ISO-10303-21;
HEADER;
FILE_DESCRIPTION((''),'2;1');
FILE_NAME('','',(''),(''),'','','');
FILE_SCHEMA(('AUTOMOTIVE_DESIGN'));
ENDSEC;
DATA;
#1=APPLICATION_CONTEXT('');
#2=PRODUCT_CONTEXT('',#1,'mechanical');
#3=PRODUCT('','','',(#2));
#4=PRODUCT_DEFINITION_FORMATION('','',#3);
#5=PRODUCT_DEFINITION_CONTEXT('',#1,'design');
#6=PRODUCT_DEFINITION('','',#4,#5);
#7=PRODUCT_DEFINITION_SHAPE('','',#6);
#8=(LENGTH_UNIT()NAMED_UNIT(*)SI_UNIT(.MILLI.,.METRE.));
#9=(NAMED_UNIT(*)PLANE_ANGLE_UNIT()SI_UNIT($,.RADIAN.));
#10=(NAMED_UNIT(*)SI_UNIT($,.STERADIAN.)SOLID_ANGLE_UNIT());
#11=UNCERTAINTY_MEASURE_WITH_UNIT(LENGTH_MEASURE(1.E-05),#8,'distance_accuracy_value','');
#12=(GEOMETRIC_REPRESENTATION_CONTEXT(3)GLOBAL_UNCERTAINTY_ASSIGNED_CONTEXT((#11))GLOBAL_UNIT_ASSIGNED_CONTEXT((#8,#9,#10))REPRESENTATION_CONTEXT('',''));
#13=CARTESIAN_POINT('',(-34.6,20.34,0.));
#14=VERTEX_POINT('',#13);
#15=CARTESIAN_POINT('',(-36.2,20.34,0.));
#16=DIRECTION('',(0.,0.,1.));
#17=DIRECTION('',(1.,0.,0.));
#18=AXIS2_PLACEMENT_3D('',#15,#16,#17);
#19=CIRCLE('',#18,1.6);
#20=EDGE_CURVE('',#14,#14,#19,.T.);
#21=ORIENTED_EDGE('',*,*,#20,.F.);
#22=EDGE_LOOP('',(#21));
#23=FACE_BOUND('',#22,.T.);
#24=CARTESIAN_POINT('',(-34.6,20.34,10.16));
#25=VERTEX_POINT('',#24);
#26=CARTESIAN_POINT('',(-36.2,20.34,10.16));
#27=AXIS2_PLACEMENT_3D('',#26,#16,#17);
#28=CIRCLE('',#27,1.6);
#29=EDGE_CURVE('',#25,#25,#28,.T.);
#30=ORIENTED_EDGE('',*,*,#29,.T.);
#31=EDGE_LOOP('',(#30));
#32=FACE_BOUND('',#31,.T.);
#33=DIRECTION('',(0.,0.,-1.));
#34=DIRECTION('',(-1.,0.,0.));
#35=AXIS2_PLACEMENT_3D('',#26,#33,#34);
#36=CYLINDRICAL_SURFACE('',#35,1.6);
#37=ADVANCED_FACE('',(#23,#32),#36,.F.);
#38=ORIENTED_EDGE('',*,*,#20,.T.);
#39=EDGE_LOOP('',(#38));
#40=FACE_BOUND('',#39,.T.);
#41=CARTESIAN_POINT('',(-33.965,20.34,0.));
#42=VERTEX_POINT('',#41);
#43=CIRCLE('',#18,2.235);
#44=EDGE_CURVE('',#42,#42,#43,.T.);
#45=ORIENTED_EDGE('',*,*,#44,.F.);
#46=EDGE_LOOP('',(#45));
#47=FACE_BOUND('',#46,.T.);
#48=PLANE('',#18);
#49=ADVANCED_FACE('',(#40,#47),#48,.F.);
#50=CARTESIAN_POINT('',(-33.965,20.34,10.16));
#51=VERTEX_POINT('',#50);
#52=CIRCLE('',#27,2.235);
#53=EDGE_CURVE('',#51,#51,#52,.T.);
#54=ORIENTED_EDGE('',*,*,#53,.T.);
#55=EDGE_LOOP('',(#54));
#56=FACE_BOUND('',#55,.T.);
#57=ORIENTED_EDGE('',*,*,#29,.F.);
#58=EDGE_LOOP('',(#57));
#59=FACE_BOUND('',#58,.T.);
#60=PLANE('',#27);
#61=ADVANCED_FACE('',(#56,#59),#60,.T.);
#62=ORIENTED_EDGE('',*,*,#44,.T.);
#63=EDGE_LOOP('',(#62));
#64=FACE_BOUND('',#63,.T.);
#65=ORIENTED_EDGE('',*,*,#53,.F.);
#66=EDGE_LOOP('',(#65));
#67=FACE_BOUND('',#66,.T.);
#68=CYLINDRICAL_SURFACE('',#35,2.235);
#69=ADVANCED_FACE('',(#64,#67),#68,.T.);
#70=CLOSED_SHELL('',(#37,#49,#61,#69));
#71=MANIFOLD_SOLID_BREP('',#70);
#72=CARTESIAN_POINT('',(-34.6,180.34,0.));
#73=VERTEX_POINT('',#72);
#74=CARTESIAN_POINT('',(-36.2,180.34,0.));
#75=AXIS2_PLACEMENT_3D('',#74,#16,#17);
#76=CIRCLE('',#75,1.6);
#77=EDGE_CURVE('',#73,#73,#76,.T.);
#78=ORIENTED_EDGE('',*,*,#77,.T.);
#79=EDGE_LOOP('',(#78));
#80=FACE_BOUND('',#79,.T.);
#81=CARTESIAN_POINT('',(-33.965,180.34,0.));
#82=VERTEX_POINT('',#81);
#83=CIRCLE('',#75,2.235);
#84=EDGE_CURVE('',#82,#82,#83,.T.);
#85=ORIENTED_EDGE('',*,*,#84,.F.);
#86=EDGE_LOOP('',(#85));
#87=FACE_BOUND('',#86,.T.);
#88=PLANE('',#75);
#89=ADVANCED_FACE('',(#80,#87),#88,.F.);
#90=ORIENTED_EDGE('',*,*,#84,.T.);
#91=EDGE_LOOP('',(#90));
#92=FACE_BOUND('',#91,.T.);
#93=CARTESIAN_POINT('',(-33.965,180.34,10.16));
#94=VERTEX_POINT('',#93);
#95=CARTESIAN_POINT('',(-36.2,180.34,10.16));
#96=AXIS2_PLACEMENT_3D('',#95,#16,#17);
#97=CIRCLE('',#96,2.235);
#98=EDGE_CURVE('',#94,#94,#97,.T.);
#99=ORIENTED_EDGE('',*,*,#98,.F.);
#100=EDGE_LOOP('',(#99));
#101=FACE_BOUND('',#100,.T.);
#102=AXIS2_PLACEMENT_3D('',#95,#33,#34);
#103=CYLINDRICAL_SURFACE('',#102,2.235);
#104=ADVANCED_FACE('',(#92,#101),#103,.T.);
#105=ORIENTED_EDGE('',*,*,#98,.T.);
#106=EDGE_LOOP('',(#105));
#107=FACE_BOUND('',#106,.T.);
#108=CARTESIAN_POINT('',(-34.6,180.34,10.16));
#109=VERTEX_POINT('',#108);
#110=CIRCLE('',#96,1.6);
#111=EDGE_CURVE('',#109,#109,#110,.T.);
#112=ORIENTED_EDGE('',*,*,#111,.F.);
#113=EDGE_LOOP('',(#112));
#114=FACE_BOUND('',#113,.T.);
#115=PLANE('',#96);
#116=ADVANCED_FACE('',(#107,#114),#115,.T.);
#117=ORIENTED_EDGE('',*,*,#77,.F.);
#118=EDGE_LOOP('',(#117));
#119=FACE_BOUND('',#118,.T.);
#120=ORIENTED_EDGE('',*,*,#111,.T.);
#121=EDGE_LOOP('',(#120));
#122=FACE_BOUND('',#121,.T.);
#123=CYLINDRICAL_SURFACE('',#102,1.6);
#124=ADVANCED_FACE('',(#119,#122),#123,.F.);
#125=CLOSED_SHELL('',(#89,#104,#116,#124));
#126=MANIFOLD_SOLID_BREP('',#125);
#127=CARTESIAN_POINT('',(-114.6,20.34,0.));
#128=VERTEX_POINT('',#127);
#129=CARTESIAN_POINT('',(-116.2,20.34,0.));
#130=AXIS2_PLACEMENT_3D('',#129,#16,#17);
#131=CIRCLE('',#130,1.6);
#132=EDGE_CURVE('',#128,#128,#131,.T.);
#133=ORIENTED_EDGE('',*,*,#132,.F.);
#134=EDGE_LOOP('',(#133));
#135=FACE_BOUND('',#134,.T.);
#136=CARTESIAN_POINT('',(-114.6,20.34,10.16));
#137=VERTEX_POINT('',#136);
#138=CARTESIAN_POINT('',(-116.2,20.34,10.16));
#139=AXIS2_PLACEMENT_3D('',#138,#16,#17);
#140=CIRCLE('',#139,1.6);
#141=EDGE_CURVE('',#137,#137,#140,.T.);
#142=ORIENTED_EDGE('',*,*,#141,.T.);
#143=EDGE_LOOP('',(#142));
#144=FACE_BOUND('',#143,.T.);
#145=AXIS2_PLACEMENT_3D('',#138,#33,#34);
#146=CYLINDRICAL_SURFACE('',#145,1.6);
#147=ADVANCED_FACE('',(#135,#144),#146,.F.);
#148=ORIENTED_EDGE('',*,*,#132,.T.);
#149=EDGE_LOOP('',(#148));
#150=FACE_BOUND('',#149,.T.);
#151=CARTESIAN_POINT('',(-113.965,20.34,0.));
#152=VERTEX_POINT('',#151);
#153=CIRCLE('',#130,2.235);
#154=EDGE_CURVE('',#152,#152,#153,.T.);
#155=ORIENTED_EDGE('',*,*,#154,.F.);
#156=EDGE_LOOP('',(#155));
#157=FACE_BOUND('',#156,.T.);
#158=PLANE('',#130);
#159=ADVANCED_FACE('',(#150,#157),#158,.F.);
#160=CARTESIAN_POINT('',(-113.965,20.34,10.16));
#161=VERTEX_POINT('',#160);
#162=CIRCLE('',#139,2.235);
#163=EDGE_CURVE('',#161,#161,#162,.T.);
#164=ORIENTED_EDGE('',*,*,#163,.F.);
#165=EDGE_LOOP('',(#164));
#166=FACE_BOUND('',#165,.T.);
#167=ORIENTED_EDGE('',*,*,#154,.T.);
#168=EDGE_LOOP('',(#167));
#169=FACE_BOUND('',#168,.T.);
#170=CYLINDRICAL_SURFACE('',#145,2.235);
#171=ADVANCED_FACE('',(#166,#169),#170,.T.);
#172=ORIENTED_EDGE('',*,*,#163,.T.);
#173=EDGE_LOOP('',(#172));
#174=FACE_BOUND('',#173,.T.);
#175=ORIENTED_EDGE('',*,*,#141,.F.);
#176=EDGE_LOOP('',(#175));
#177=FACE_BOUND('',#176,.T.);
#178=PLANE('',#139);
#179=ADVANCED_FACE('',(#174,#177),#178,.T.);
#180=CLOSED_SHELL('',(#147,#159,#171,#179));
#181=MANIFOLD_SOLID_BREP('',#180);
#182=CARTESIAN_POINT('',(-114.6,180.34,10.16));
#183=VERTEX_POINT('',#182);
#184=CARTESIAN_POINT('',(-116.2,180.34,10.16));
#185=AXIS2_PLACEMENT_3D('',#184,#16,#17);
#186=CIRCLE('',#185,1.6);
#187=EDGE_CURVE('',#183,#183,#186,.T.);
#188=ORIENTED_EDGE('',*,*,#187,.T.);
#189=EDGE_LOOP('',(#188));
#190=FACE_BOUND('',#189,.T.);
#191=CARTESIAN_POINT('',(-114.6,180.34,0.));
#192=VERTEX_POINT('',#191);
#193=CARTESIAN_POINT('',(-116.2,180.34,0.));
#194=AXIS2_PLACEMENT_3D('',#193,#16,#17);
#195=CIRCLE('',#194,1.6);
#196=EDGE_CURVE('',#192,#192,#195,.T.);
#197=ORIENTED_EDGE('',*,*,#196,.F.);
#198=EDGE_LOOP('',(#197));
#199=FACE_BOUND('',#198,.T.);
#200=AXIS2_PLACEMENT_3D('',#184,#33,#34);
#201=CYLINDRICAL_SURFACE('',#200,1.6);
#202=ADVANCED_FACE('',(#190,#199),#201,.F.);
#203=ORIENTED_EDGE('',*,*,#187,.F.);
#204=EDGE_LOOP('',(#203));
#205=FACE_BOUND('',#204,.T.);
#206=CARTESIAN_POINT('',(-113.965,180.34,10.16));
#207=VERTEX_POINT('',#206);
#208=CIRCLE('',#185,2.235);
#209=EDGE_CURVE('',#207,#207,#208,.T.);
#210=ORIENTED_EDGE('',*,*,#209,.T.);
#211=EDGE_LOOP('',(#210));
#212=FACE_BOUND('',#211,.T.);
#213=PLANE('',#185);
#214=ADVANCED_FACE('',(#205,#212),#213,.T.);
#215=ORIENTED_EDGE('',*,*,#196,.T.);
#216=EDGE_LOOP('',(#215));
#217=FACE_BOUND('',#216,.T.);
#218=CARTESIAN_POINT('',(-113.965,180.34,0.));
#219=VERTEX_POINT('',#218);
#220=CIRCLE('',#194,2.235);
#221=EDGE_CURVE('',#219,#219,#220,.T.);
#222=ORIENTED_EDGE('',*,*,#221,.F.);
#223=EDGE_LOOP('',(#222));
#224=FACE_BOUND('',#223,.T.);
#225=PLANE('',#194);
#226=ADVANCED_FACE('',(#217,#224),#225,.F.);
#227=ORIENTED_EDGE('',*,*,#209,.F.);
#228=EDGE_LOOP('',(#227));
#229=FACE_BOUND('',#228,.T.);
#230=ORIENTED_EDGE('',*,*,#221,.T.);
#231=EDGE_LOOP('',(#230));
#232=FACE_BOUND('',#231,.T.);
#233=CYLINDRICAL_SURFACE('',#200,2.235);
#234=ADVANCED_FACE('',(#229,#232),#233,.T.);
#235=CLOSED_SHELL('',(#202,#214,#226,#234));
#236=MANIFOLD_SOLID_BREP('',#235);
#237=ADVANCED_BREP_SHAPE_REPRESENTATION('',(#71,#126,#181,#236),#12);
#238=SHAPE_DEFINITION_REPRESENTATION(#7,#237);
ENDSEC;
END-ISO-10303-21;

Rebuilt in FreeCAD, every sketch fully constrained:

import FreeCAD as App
import Part
import Sketcher
Q = App.Units.Quantity

doc = App.newDocument("Part")
body = doc.addObject("PartDesign::Body", "Body")

sketch1 = body.newObject("Sketcher::SketchObject", "Sketch")
sketch1.AttachmentSupport = (doc.getObject("XY_Plane"), [""])
sketch1.MapMode = "FlatFace"
sketch1.addGeometry(Part.Circle(App.Vector(-116.2, 180.3, 0), App.Vector(0, 0, 1), 2.2), False)
sketch1.addGeometry(Part.Circle(App.Vector(-116.2, 180.3, 0), App.Vector(0, 0, 1), 1.6), False)
sketch1.addConstraint(Sketcher.Constraint("Coincident", 1, 3, 0, 3))
sketch1.addConstraint(Sketcher.Constraint("Diameter", 1, Q("3.2 mm")))
sketch1.addConstraint(Sketcher.Constraint("Diameter", 0, Q("4.47 mm")))
sketch1.addConstraint(Sketcher.Constraint("DistanceX", 0, 3, -1, 1, Q("116.2 mm")))
sketch1.addConstraint(Sketcher.Constraint("DistanceY", -1, 1, 0, 3, Q("180.34 mm")))
pad1 = body.newObject("PartDesign::Pad", "Pad")
pad1.Profile = sketch1
pad1.Length = 10.16
body2 = doc.addObject("PartDesign::Body", "Body001")

sketch2 = body2.newObject("Sketcher::SketchObject", "Sketch001")
sketch2.AttachmentSupport = (doc.getObject("XY_Plane001"), [""])
sketch2.MapMode = "FlatFace"
sketch2.addGeometry(Part.Circle(App.Vector(-36.2, 180.3, 0), App.Vector(0, 0, 1), 2.2), False)
sketch2.addGeometry(Part.Circle(App.Vector(-36.2, 180.3, 0), App.Vector(0, 0, 1), 1.6), False)
sketch2.addConstraint(Sketcher.Constraint("Coincident", 1, 3, 0, 3))
sketch2.addConstraint(Sketcher.Constraint("Diameter", 1, Q("3.2 mm")))
sketch2.addConstraint(Sketcher.Constraint("Diameter", 0, Q("4.47 mm")))
sketch2.addConstraint(Sketcher.Constraint("DistanceX", 0, 3, -1, 1, Q("36.2 mm")))
sketch2.addConstraint(Sketcher.Constraint("DistanceY", -1, 1, 0, 3, Q("180.34 mm")))
pad2 = body2.newObject("PartDesign::Pad", "Pad001")
pad2.Profile = sketch2
pad2.Length = 10.16
body3 = doc.addObject("PartDesign::Body", "Body002")

sketch3 = body3.newObject("Sketcher::SketchObject", "Sketch002")
sketch3.AttachmentSupport = (doc.getObject("XY_Plane002"), [""])
sketch3.MapMode = "FlatFace"
sketch3.addGeometry(Part.Circle(App.Vector(-116.2, 20.3, 0), App.Vector(0, 0, 1), 2.2), False)
sketch3.addGeometry(Part.Circle(App.Vector(-116.2, 20.3, 0), App.Vector(0, 0, 1), 1.6), False)
sketch3.addConstraint(Sketcher.Constraint("Coincident", 1, 3, 0, 3))
sketch3.addConstraint(Sketcher.Constraint("Diameter", 1, Q("3.2 mm")))
sketch3.addConstraint(Sketcher.Constraint("Diameter", 0, Q("4.47 mm")))
sketch3.addConstraint(Sketcher.Constraint("DistanceX", 0, 3, -1, 1, Q("116.2 mm")))
sketch3.addConstraint(Sketcher.Constraint("DistanceY", -1, 1, 0, 3, Q("20.34 mm")))
pad3 = body3.newObject("PartDesign::Pad", "Pad002")
pad3.Profile = sketch3
pad3.Length = 10.16
body4 = doc.addObject("PartDesign::Body", "Body003")

sketch4 = body4.newObject("Sketcher::SketchObject", "Sketch003")
sketch4.AttachmentSupport = (doc.getObject("XY_Plane003"), [""])
sketch4.MapMode = "FlatFace"
sketch4.addGeometry(Part.Circle(App.Vector(-36.2, 20.3, 0), App.Vector(0, 0, 1), 2.2), False)
sketch4.addGeometry(Part.Circle(App.Vector(-36.2, 20.3, 0), App.Vector(0, 0, 1), 1.6), False)
sketch4.addConstraint(Sketcher.Constraint("Coincident", 1, 3, 0, 3))
sketch4.addConstraint(Sketcher.Constraint("Diameter", 1, Q("3.2 mm")))
sketch4.addConstraint(Sketcher.Constraint("Diameter", 0, Q("4.47 mm")))
sketch4.addConstraint(Sketcher.Constraint("DistanceX", 0, 3, -1, 1, Q("36.2 mm")))
sketch4.addConstraint(Sketcher.Constraint("DistanceY", -1, 1, 0, 3, Q("20.34 mm")))
pad4 = body4.newObject("PartDesign::Pad", "Pad003")
pad4.Profile = sketch4
pad4.Length = 10.16

doc.recompute()
